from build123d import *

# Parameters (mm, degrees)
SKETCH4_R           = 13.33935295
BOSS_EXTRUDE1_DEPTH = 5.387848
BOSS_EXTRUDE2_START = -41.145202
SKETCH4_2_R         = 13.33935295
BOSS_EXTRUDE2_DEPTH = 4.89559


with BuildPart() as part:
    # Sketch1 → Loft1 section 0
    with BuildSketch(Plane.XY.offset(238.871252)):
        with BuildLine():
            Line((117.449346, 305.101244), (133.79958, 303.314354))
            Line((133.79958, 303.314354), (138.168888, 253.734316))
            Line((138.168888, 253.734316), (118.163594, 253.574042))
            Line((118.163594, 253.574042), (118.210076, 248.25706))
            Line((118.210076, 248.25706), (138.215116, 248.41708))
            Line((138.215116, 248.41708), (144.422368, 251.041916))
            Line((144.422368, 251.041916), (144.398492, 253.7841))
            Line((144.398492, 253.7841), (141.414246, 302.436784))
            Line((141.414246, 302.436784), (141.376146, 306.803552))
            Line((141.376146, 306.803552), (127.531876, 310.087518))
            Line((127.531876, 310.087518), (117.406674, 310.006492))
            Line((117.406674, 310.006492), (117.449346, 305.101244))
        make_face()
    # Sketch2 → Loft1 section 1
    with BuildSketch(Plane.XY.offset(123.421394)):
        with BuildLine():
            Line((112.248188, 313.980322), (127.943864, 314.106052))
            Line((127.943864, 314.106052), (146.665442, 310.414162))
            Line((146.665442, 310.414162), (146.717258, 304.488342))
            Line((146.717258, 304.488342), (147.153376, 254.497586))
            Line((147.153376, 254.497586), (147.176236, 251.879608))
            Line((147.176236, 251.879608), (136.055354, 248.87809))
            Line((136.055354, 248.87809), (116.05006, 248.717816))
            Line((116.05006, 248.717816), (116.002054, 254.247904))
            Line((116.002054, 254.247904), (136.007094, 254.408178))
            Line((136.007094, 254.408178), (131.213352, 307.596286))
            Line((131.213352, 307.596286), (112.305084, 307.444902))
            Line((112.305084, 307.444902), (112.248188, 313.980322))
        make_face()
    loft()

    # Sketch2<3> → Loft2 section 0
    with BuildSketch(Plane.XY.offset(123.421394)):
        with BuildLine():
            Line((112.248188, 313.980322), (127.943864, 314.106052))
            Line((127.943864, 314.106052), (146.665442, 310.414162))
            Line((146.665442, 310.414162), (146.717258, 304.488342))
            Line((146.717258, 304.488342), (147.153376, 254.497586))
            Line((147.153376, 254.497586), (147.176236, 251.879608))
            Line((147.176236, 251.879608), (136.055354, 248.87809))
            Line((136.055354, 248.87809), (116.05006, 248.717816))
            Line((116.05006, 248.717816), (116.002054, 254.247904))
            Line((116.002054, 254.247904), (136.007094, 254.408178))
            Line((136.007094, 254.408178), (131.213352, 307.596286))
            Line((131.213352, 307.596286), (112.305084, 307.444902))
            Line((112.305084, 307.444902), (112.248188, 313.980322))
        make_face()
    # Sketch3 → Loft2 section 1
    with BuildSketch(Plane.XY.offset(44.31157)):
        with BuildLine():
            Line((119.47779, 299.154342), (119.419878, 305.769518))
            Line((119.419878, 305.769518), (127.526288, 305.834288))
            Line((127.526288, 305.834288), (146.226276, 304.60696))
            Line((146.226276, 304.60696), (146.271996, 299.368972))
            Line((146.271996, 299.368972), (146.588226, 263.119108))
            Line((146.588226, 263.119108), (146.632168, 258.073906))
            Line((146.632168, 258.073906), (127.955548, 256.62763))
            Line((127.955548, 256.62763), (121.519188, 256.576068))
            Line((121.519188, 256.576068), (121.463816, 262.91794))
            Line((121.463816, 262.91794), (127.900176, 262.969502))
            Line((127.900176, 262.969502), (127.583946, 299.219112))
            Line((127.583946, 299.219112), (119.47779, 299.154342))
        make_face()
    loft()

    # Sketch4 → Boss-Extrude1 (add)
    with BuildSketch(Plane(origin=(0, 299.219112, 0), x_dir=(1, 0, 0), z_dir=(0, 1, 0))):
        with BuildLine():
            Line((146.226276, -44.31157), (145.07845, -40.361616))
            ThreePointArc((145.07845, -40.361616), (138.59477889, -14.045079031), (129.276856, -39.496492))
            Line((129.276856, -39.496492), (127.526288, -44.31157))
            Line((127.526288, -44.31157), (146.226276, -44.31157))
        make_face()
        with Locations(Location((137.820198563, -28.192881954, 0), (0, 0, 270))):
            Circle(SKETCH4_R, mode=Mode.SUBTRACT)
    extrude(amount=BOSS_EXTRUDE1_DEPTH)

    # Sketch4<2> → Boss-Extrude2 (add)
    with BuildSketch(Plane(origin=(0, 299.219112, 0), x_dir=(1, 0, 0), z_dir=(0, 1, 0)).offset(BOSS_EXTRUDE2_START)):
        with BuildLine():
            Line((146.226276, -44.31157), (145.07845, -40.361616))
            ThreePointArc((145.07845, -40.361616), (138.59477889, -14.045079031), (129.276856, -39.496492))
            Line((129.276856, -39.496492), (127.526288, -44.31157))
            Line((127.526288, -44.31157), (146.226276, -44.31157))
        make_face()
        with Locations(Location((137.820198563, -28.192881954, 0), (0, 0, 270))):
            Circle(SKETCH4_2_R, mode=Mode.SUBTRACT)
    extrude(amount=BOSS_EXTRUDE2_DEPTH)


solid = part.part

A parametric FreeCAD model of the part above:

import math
import FreeCAD as App
import Part
import Sketcher
Q = App.Units.Quantity

doc = App.newDocument("Part")
body = doc.addObject("PartDesign::Body", "Body")

# Sketch on XY plane
sketch1 = body.newObject("Sketcher::SketchObject", "Sketch")
sketch1.AttachmentSupport = (doc.getObject("XY_Plane"), [""])
sketch1.MapMode = "FlatFace"
sketch1.AttachmentOffset = App.Placement(App.Vector(0, 0, 238.871252), App.Rotation())
sketch1.addGeometry([
    Part.LineSegment(App.Vector(117.4, 305.1, 0), App.Vector(133.8, 303.3, 0)),  # 0
    Part.LineSegment(App.Vector(133.8, 303.3, 0), App.Vector(138.2, 253.7, 0)),  # 1
    Part.LineSegment(App.Vector(138.2, 253.7, 0), App.Vector(118.2, 253.6, 0)),  # 2
    Part.LineSegment(App.Vector(118.2, 253.6, 0), App.Vector(118.2, 248.3, 0)),  # 3
    Part.LineSegment(App.Vector(118.2, 248.3, 0), App.Vector(138.2, 248.4, 0)),  # 4
    Part.LineSegment(App.Vector(138.2, 248.4, 0), App.Vector(144.4, 251, 0)),  # 5
    Part.LineSegment(App.Vector(144.4, 251, 0), App.Vector(144.4, 253.8, 0)),  # 6
    Part.LineSegment(App.Vector(144.4, 253.8, 0), App.Vector(141.4, 302.4, 0)),  # 7
    Part.LineSegment(App.Vector(141.4, 302.4, 0), App.Vector(141.4, 306.8, 0)),  # 8
    Part.LineSegment(App.Vector(141.4, 306.8, 0), App.Vector(127.5, 310.1, 0)),  # 9
    Part.LineSegment(App.Vector(127.5, 310.1, 0), App.Vector(117.4, 310, 0)),  # 10
    Part.LineSegment(App.Vector(117.4, 310, 0), App.Vector(117.4, 305.1, 0)),  # 11
], False)
sketch1.addConstraint([
    Sketcher.Constraint("Coincident", 0, 2, 1, 1),
    Sketcher.Constraint("Coincident", 1, 2, 2, 1),
    Sketcher.Constraint("Coincident", 2, 2, 3, 1),
    Sketcher.Constraint("Coincident", 3, 2, 4, 1),
    Sketcher.Constraint("Coincident", 4, 2, 5, 1),
    Sketcher.Constraint("Coincident", 5, 2, 6, 1),
    Sketcher.Constraint("Coincident", 6, 2, 7, 1),
    Sketcher.Constraint("Coincident", 7, 2, 8, 1),
    Sketcher.Constraint("Coincident", 8, 2, 9, 1),
    Sketcher.Constraint("Coincident", 9, 2, 10, 1),
    Sketcher.Constraint("Coincident", 10, 2, 11, 1),
    Sketcher.Constraint("Coincident", 11, 2, 0, 1),
    Sketcher.Constraint("Angle", 7, Q("93.509997 deg")),
    Sketcher.Constraint("DistanceY", -1, 1, 6, 2, Q("253.7841 mm")),
    Sketcher.Constraint("DistanceY", 5, 2, 1, 2, Q("2.6924 mm")),
    Sketcher.Constraint("DistanceX", 2, 2, 6, 2, Q("26.234898 mm")),
    Sketcher.Constraint("DistanceX", 8, 2, 7, 2, Q("0.0381 mm")),
    Sketcher.Constraint("DistanceY", 0, 2, 8, 2, Q("3.489198 mm")),
    Sketcher.Constraint("DistanceY", 1, 2, 9, 2, Q("56.353202 mm")),
    Sketcher.Constraint("DistanceX", 11, 2, 8, 2, Q("23.9268 mm")),
    Sketcher.Constraint("Distance", 1, Q("49.772191 mm")),
    Sketcher.Constraint("Distance", 4, Q("20.00568 mm")),
    Sketcher.Constraint("Distance", 7, Q("48.744122 mm")),
    Sketcher.Constraint("Distance", 9, Q("14.228431 mm")),
    Sketcher.Constraint("DistanceX", -1, 1, 0, 2, Q("133.79958 mm")),
    Sketcher.Constraint("DistanceX", -1, 1, 1, 2, Q("138.168888 mm")),
    Sketcher.Constraint("DistanceY", -1, 1, 2, 2, Q("253.574042 mm")),
    Sketcher.Constraint("DistanceY", -1, 1, 3, 2, Q("248.25706 mm")),
    Sketcher.Constraint("DistanceY", -1, 1, 4, 2, Q("248.41708 mm")),
    Sketcher.Constraint("DistanceX", -1, 1, 5, 2, Q("144.422368 mm")),
    Sketcher.Constraint("DistanceX", -1, 1, 6, 2, Q("144.398492 mm")),
    Sketcher.Constraint("DistanceY", -1, 1, 9, 2, Q("310.087518 mm")),
    Sketcher.Constraint("DistanceY", -1, 1, 10, 2, Q("310.006492 mm")),
    Sketcher.Constraint("DistanceX", 2, 2, 3, 2, Q("0.046482 mm")),
    Sketcher.Constraint("DistanceX", 10, 2, 7, 2, Q("24.007572 mm")),
    Sketcher.Constraint("DistanceY", 0, 2, 11, 2, Q("1.78689 mm")),
])

# Sketch on XY plane
sketch2 = body.newObject("Sketcher::SketchObject", "Sketch001")
sketch2.AttachmentSupport = (doc.getObject("XY_Plane"), [""])
sketch2.MapMode = "FlatFace"
sketch2.AttachmentOffset = App.Placement(App.Vector(0, 0, 123.421394), App.Rotation())
sketch2.addGeometry([
    Part.LineSegment(App.Vector(127.943864, 314.106052, 0), App.Vector(112.248188, 313.980322, 0)),  # 0
    Part.LineSegment(App.Vector(112.248188, 313.980322, 0), App.Vector(112.305084, 307.444902, 0)),  # 1
    Part.LineSegment(App.Vector(112.305084, 307.444902, 0), App.Vector(131.213352, 307.596286, 0)),  # 2
    Part.LineSegment(App.Vector(131.213352, 307.596286, 0), App.Vector(136.007094, 254.408178, 0)),  # 3
    Part.LineSegment(App.Vector(136.007094, 254.408178, 0), App.Vector(116.002054, 254.247904, 0)),  # 4
    Part.LineSegment(App.Vector(116.002054, 254.247904, 0), App.Vector(116.05006, 248.717816, 0)),  # 5
    Part.LineSegment(App.Vector(116.05006, 248.717816, 0), App.Vector(136.055354, 248.87809, 0)),  # 6
    Part.LineSegment(App.Vector(136.055354, 248.87809, 0), App.Vector(147.176236, 251.879608, 0)),  # 7
    Part.LineSegment(App.Vector(147.176236, 251.879608, 0), App.Vector(147.153376, 254.497586, 0)),  # 8
    Part.LineSegment(App.Vector(147.153376, 254.497586, 0), App.Vector(146.717258, 304.488342, 0)),  # 9
    Part.LineSegment(App.Vector(146.717258, 304.488342, 0), App.Vector(146.665442, 310.414162, 0)),  # 10
    Part.LineSegment(App.Vector(146.665442, 310.414162, 0), App.Vector(127.943864, 314.106052, 0)),  # 11
], False)
sketch2.addConstraint([
    Sketcher.Constraint("Coincident", 0, 2, 1, 1),
    Sketcher.Constraint("Coincident", 1, 2, 2, 1),
    Sketcher.Constraint("Coincident", 2, 2, 3, 1),
    Sketcher.Constraint("Coincident", 3, 2, 4, 1),
    Sketcher.Constraint("Coincident", 4, 2, 5, 1),
    Sketcher.Constraint("Coincident", 5, 2, 6, 1),
    Sketcher.Constraint("Coincident", 6, 2, 7, 1),
    Sketcher.Constraint("Coincident", 7, 2, 8, 1),
    Sketcher.Constraint("Coincident", 8, 2, 9, 1),
    Sketcher.Constraint("Coincident", 9, 2, 10, 1),
    Sketcher.Constraint("Coincident", 10, 2, 11, 1),
    Sketcher.Constraint("Coincident", 11, 2, 0, 1),
    Sketcher.Constraint("DistanceY", 4, 2, 1, 2, Q("53.196998 mm")),
    Sketcher.Constraint("DistanceY", -1, 1, 1, 2, Q("307.444902 mm")),
    Sketcher.Constraint("DistanceX", 4, 2, 6, 2, Q("20.0533 mm")),
    Sketcher.Constraint("Distance", 0, Q("15.69618 mm")),
    Sketcher.Constraint("Distance", 9, Q("49.992658 mm")),
    Sketcher.Constraint("DistanceX", -1, 1, 0, 2, Q("112.248188 mm")),
    Sketcher.Constraint("DistanceY", -1, 1, 0, 2, Q("313.980322 mm")),
    Sketcher.Constraint("DistanceX", -1, 1, 2, 2, Q("131.213352 mm")),
    Sketcher.Constraint("DistanceY", -1, 1, 3, 2, Q("254.408178 mm")),
    Sketcher.Constraint("DistanceX", -1, 1, 5, 2, Q("116.05006 mm")),
    Sketcher.Constraint("DistanceY", -1, 1, 6, 2, Q("248.87809 mm")),
    Sketcher.Constraint("DistanceY", -1, 1, 9, 2, Q("304.488342 mm")),
    Sketcher.Constraint("DistanceY", -1, 1, 10, 2, Q("310.414162 mm")),
    Sketcher.Constraint("DistanceY", -1, 1, 11, 2, Q("314.106052 mm")),
    Sketcher.Constraint("DistanceY", 3, 2, 2, 2, Q("53.188108 mm")),
    Sketcher.Constraint("DistanceX", 1, 2, 3, 2, Q("23.70201 mm")),
    Sketcher.Constraint("DistanceX", 4, 2, 3, 2, Q("20.00504 mm")),
    Sketcher.Constraint("DistanceY", 5, 2, 4, 2, Q("5.530088 mm")),
    Sketcher.Constraint("DistanceX", 3, 2, 7, 2, Q("11.169142 mm")),
    Sketcher.Constraint("DistanceY", 7, 2, 3, 2, Q("2.52857 mm")),
    Sketcher.Constraint("DistanceX", 8, 2, 7, 2, Q("0.02286 mm")),
    Sketcher.Constraint("DistanceY", 7, 2, 8, 2, Q("2.617978 mm")),
    Sketcher.Constraint("DistanceX", 0, 2, 9, 2, Q("34.46907 mm")),
    Sketcher.Constraint("DistanceX", 2, 2, 10, 2, Q("15.45209 mm")),
])

additiveloft = body.newObject("PartDesign::AdditiveLoft", "AdditiveLoft")
additiveloft.Profile = sketch1
additiveloft.Sections = [sketch2]

# Sketch on XY plane
sketch3 = body.newObject("Sketcher::SketchObject", "Sketch002")
sketch3.AttachmentSupport = (doc.getObject("XY_Plane"), [""])
sketch3.MapMode = "FlatFace"
sketch3.AttachmentOffset = App.Placement(App.Vector(0, 0, 123.421394), App.Rotation())
sketch3.addGeometry([
    Part.LineSegment(App.Vector(127.943864, 314.106052, 0), App.Vector(112.248188, 313.980322, 0)),  # 0
    Part.LineSegment(App.Vector(112.248188, 313.980322, 0), App.Vector(112.305084, 307.444902, 0)),  # 1
    Part.LineSegment(App.Vector(112.305084, 307.444902, 0), App.Vector(131.213352, 307.596286, 0)),  # 2
    Part.LineSegment(App.Vector(131.213352, 307.596286, 0), App.Vector(136.007094, 254.408178, 0)),  # 3
    Part.LineSegment(App.Vector(136.007094, 254.408178, 0), App.Vector(116.002054, 254.247904, 0)),  # 4
    Part.LineSegment(App.Vector(116.002054, 254.247904, 0), App.Vector(116.05006, 248.717816, 0)),  # 5
    Part.LineSegment(App.Vector(116.05006, 248.717816, 0), App.Vector(136.055354, 248.87809, 0)),  # 6
    Part.LineSegment(App.Vector(136.055354, 248.87809, 0), App.Vector(147.176236, 251.879608, 0)),  # 7
    Part.LineSegment(App.Vector(147.176236, 251.879608, 0), App.Vector(147.153376, 254.497586, 0)),  # 8
    Part.LineSegment(App.Vector(147.153376, 254.497586, 0), App.Vector(146.717258, 304.488342, 0)),  # 9
    Part.LineSegment(App.Vector(146.717258, 304.488342, 0), App.Vector(146.665442, 310.414162, 0)),  # 10
    Part.LineSegment(App.Vector(146.665442, 310.414162, 0), App.Vector(127.943864, 314.106052, 0)),  # 11
], False)
sketch3.addConstraint([
    Sketcher.Constraint("Coincident", 0, 2, 1, 1),
    Sketcher.Constraint("Coincident", 1, 2, 2, 1),
    Sketcher.Constraint("Coincident", 2, 2, 3, 1),
    Sketcher.Constraint("Coincident", 3, 2, 4, 1),
    Sketcher.Constraint("Coincident", 4, 2, 5, 1),
    Sketcher.Constraint("Coincident", 5, 2, 6, 1),
    Sketcher.Constraint("Coincident", 6, 2, 7, 1),
    Sketcher.Constraint("Coincident", 7, 2, 8, 1),
    Sketcher.Constraint("Coincident", 8, 2, 9, 1),
    Sketcher.Constraint("Coincident", 9, 2, 10, 1),
    Sketcher.Constraint("Coincident", 10, 2, 11, 1),
    Sketcher.Constraint("Coincident", 11, 2, 0, 1),
    Sketcher.Constraint("DistanceY", 4, 2, 1, 2, Q("53.196998 mm")),
    Sketcher.Constraint("DistanceY", -1, 1, 1, 2, Q("307.444902 mm")),
    Sketcher.Constraint("DistanceX", 4, 2, 6, 2, Q("20.0533 mm")),
    Sketcher.Constraint("Distance", 0, Q("15.69618 mm")),
    Sketcher.Constraint("Distance", 9, Q("49.992658 mm")),
    Sketcher.Constraint("DistanceX", -1, 1, 0, 2, Q("112.248188 mm")),
    Sketcher.Constraint("DistanceY", -1, 1, 0, 2, Q("313.980322 mm")),
    Sketcher.Constraint("DistanceX", -1, 1, 2, 2, Q("131.213352 mm")),
    Sketcher.Constraint("DistanceY", -1, 1, 3, 2, Q("254.408178 mm")),
    Sketcher.Constraint("DistanceX", -1, 1, 5, 2, Q("116.05006 mm")),
    Sketcher.Constraint("DistanceY", -1, 1, 6, 2, Q("248.87809 mm")),
    Sketcher.Constraint("DistanceY", -1, 1, 9, 2, Q("304.488342 mm")),
    Sketcher.Constraint("DistanceY", -1, 1, 10, 2, Q("310.414162 mm")),
    Sketcher.Constraint("DistanceY", -1, 1, 11, 2, Q("314.106052 mm")),
    Sketcher.Constraint("DistanceY", 3, 2, 2, 2, Q("53.188108 mm")),
    Sketcher.Constraint("DistanceX", 1, 2, 3, 2, Q("23.70201 mm")),
    Sketcher.Constraint("DistanceX", 4, 2, 3, 2, Q("20.00504 mm")),
    Sketcher.Constraint("DistanceY", 5, 2, 4, 2, Q("5.530088 mm")),
    Sketcher.Constraint("DistanceX", 3, 2, 7, 2, Q("11.169142 mm")),
    Sketcher.Constraint("DistanceY", 7, 2, 3, 2, Q("2.52857 mm")),
    Sketcher.Constraint("DistanceX", 8, 2, 7, 2, Q("0.02286 mm")),
    Sketcher.Constraint("DistanceY", 7, 2, 8, 2, Q("2.617978 mm")),
    Sketcher.Constraint("DistanceX", 0, 2, 9, 2, Q("34.46907 mm")),
    Sketcher.Constraint("DistanceX", 2, 2, 10, 2, Q("15.45209 mm")),
])

# Sketch on XY plane
sketch4 = body.newObject("Sketcher::SketchObject", "Sketch003")
sketch4.AttachmentSupport = (doc.getObject("XY_Plane"), [""])
sketch4.MapMode = "FlatFace"
sketch4.AttachmentOffset = App.Placement(App.Vector(0, 0, 44.31157), App.Rotation())
sketch4.addGeometry([
    Part.LineSegment(App.Vector(119.419878, 305.769518, 0), App.Vector(119.47779, 299.154342, 0)),  # 0
    Part.LineSegment(App.Vector(119.47779, 299.154342, 0), App.Vector(127.583946, 299.219112, 0)),  # 1
    Part.LineSegment(App.Vector(127.583946, 299.219112, 0), App.Vector(127.900176, 262.969502, 0)),  # 2
    Part.LineSegment(App.Vector(127.900176, 262.969502, 0), App.Vector(121.463816, 262.91794, 0)),  # 3
    Part.LineSegment(App.Vector(121.463816, 262.91794, 0), App.Vector(121.519188, 256.576068, 0)),  # 4
    Part.LineSegment(App.Vector(121.519188, 256.576068, 0), App.Vector(127.955548, 256.62763, 0)),  # 5
    Part.LineSegment(App.Vector(127.955548, 256.62763, 0), App.Vector(146.632168, 258.073906, 0)),  # 6
    Part.LineSegment(App.Vector(146.632168, 258.073906, 0), App.Vector(146.588226, 263.119108, 0)),  # 7
    Part.LineSegment(App.Vector(146.588226, 263.119108, 0), App.Vector(146.271996, 299.368972, 0)),  # 8
    Part.LineSegment(App.Vector(146.271996, 299.368972, 0), App.Vector(146.226276, 304.60696, 0)),  # 9
    Part.LineSegment(App.Vector(146.226276, 304.60696, 0), App.Vector(127.526288, 305.834288, 0)),  # 10
    Part.LineSegment(App.Vector(127.526288, 305.834288, 0), App.Vector(119.419878, 305.769518, 0)),  # 11
], False)
sketch4.addConstraint([
    Sketcher.Constraint("Coincident", 0, 2, 1, 1),
    Sketcher.Constraint("Coincident", 1, 2, 2, 1),
    Sketcher.Constraint("Coincident", 2, 2, 3, 1),
    Sketcher.Constraint("Coincident", 3, 2, 4, 1),
    Sketcher.Constraint("Coincident", 4, 2, 5, 1),
    Sketcher.Constraint("Coincident", 5, 2, 6, 1),
    Sketcher.Constraint("Coincident", 6, 2, 7, 1),
    Sketcher.Constraint("Coincident", 7, 2, 8, 1),
    Sketcher.Constraint("Coincident", 8, 2, 9, 1),
    Sketcher.Constraint("Coincident", 9, 2, 10, 1),
    Sketcher.Constraint("Coincident", 10, 2, 11, 1),
    Sketcher.Constraint("Coincident", 11, 2, 0, 1),
    Sketcher.Constraint("Parallel", 3, 5),
    Sketcher.Constraint("Parallel", 2, 8),
    Sketcher.Constraint("Parallel", 1, 11),
    Sketcher.Constraint("Equal", 3, 5),
    Sketcher.Constraint("DistanceY", -1, 1, 2, 2, Q("262.969502 mm")),
    Sketcher.Constraint("DistanceY", 3, 2, 0, 2, Q("36.236402 mm")),
    Sketcher.Constraint("DistanceX", 0, 2, 4, 2, Q("2.041398 mm")),
    Sketcher.Constraint("DistanceX", 1, 2, 5, 2, Q("0.371602 mm")),
    Sketcher.Constraint("DistanceY", 6, 2, 7, 2, Q("5.045202 mm")),
    Sketcher.Constraint("DistanceX", 2, 2, 9, 2, Q("18.3261 mm")),
    Sketcher.Constraint("DistanceX", 11, 2, 9, 2, Q("26.806398 mm")),
    Sketcher.Constraint("Distance", 0, Q("6.615429 mm")),
    Sketcher.Constraint("Distance", 2, Q("36.250989 mm")),
    Sketcher.Constraint("Distance", 10, Q("18.740221 mm")),
    Sketcher.Constraint("Distance", 11, Q("8.106669 mm")),
    Sketcher.Constraint("DistanceX", -1, 1, 0, 2, Q("119.47779 mm")),
    Sketcher.Constraint("DistanceY", -1, 1, 0, 2, Q("299.154342 mm")),
    Sketcher.Constraint("DistanceY", -1, 1, 1, 2, Q("299.219112 mm")),
    Sketcher.Constraint("DistanceY", -1, 1, 4, 2, Q("256.576068 mm")),
    Sketcher.Constraint("DistanceX", -1, 1, 6, 2, Q("146.632168 mm")),
    Sketcher.Constraint("DistanceY", -1, 1, 7, 2, Q("263.119108 mm")),
    Sketcher.Constraint("DistanceY", -1, 1, 8, 2, Q("299.368972 mm")),
    Sketcher.Constraint("DistanceY", -1, 1, 11, 2, Q("305.769518 mm")),
    Sketcher.Constraint("DistanceX", 2, 2, 7, 2, Q("18.68805 mm")),
])

additiveloft2 = body.newObject("PartDesign::AdditiveLoft", "AdditiveLoft001")
additiveloft2.Profile = sketch3
additiveloft2.Sections = [sketch4]

# Sketch on XZ plane
sketch5 = body.newObject("Sketcher::SketchObject", "Sketch004")
sketch5.AttachmentSupport = (doc.getObject("XZ_Plane"), [""])
sketch5.MapMode = "FlatFace"
sketch5.AttachmentOffset = App.Placement(App.Vector(0, 0, -299.219112), App.Rotation())
sketch5.addGeometry([
    Part.LineSegment(App.Vector(146.2, 44.3, 0), App.Vector(145.1, 40.4, 0)),  # 0
    Part.ArcOfCircle(Part.Circle(App.Vector(137.8, 28.2, 0), App.Vector(0, 0, 1), 14.2), math.radians(127), math.radians(419)),  # 1
    Part.LineSegment(App.Vector(129.3, 39.5, 0), App.Vector(127.5, 44.3, 0)),  # 2
    Part.LineSegment(App.Vector(127.5, 44.3, 0), App.Vector(146.2, 44.3, 0)),  # 3
    Part.Circle(App.Vector(137.8, 28.2, 0), App.Vector(0, 0, 1), 13.3),  # 4
], False)
sketch5.addConstraint([
    Sketcher.Constraint("Coincident", 0, 2, 1, 2),
    Sketcher.Constraint("Coincident", 1, 1, 2, 1),
    Sketcher.Constraint("Coincident", 2, 2, 3, 1),
    Sketcher.Constraint("Coincident", 3, 2, 0, 1),
    Sketcher.Constraint("Horizontal", 3),
    Sketcher.Constraint("Coincident", 4, 3, 1, 3),
    Sketcher.Constraint("Radius", 1, Q("14.168991 mm")),
    Sketcher.Constraint("Diameter", 4, Q("26.678706 mm")),
    Sketcher.Constraint("DistanceX", 3, 1, 3, 2, Q("18.699988 mm")),
    Sketcher.Constraint("DistanceX", -1, 1, 1, 3, Q("137.820199 mm")),
    Sketcher.Constraint("Distance", 0, Q("4.113349 mm")),
    Sketcher.Constraint("DistanceY", -1, 1, 1, 3, Q("28.192882 mm")),
    Sketcher.Constraint("DistanceX", -1, 1, 0, 2, Q("145.07845 mm")),
    Sketcher.Constraint("DistanceY", -1, 1, 1, 1, Q("39.496492 mm")),
    Sketcher.Constraint("DistanceY", -1, 1, 2, 2, Q("44.31157 mm")),
])
pad1 = body.newObject("PartDesign::Pad", "Pad")
pad1.Profile = sketch5
pad1.Length = 5.387848
pad1.Reversed = True

# Sketch on XZ plane
sketch6 = body.newObject("Sketcher::SketchObject", "Sketch005")
sketch6.AttachmentSupport = (doc.getObject("XZ_Plane"), [""])
sketch6.MapMode = "FlatFace"
sketch6.AttachmentOffset = App.Placement(App.Vector(0, 0, -258.07391), App.Rotation())
sketch6.addGeometry([
    Part.LineSegment(App.Vector(146.2, 44.3, 0), App.Vector(145.1, 40.4, 0)),  # 0
    Part.ArcOfCircle(Part.Circle(App.Vector(137.8, 28.2, 0), App.Vector(0, 0, 1), 14.2), math.radians(127), math.radians(419)),  # 1
    Part.LineSegment(App.Vector(129.3, 39.5, 0), App.Vector(127.5, 44.3, 0)),  # 2
    Part.LineSegment(App.Vector(127.5, 44.3, 0), App.Vector(146.2, 44.3, 0)),  # 3
    Part.Circle(App.Vector(137.8, 28.2, 0), App.Vector(0, 0, 1), 13.3),  # 4
], False)
sketch6.addConstraint([
    Sketcher.Constraint("Coincident", 0, 2, 1, 2),
    Sketcher.Constraint("Coincident", 1, 1, 2, 1),
    Sketcher.Constraint("Coincident", 2, 2, 3, 1),
    Sketcher.Constraint("Coincident", 3, 2, 0, 1),
    Sketcher.Constraint("Horizontal", 3),
    Sketcher.Constraint("Coincident", 4, 3, 1, 3),
    Sketcher.Constraint("Radius", 1, Q("14.168991 mm")),
    Sketcher.Constraint("Diameter", 4, Q("26.678706 mm")),
    Sketcher.Constraint("DistanceX", 3, 1, 3, 2, Q("18.699988 mm")),
    Sketcher.Constraint("DistanceX", -1, 1, 1, 3, Q("137.820199 mm")),
    Sketcher.Constraint("Distance", 0, Q("4.113349 mm")),
    Sketcher.Constraint("DistanceY", -1, 1, 1, 3, Q("28.192882 mm")),
    Sketcher.Constraint("DistanceX", -1, 1, 0, 2, Q("145.07845 mm")),
    Sketcher.Constraint("DistanceY", -1, 1, 1, 1, Q("39.496492 mm")),
    Sketcher.Constraint("DistanceY", -1, 1, 2, 2, Q("44.31157 mm")),
])
pad2 = body.newObject("PartDesign::Pad", "Pad001")
pad2.Profile = sketch6
pad2.Length = 4.89559
pad2.Reversed = True

doc.recompute()
